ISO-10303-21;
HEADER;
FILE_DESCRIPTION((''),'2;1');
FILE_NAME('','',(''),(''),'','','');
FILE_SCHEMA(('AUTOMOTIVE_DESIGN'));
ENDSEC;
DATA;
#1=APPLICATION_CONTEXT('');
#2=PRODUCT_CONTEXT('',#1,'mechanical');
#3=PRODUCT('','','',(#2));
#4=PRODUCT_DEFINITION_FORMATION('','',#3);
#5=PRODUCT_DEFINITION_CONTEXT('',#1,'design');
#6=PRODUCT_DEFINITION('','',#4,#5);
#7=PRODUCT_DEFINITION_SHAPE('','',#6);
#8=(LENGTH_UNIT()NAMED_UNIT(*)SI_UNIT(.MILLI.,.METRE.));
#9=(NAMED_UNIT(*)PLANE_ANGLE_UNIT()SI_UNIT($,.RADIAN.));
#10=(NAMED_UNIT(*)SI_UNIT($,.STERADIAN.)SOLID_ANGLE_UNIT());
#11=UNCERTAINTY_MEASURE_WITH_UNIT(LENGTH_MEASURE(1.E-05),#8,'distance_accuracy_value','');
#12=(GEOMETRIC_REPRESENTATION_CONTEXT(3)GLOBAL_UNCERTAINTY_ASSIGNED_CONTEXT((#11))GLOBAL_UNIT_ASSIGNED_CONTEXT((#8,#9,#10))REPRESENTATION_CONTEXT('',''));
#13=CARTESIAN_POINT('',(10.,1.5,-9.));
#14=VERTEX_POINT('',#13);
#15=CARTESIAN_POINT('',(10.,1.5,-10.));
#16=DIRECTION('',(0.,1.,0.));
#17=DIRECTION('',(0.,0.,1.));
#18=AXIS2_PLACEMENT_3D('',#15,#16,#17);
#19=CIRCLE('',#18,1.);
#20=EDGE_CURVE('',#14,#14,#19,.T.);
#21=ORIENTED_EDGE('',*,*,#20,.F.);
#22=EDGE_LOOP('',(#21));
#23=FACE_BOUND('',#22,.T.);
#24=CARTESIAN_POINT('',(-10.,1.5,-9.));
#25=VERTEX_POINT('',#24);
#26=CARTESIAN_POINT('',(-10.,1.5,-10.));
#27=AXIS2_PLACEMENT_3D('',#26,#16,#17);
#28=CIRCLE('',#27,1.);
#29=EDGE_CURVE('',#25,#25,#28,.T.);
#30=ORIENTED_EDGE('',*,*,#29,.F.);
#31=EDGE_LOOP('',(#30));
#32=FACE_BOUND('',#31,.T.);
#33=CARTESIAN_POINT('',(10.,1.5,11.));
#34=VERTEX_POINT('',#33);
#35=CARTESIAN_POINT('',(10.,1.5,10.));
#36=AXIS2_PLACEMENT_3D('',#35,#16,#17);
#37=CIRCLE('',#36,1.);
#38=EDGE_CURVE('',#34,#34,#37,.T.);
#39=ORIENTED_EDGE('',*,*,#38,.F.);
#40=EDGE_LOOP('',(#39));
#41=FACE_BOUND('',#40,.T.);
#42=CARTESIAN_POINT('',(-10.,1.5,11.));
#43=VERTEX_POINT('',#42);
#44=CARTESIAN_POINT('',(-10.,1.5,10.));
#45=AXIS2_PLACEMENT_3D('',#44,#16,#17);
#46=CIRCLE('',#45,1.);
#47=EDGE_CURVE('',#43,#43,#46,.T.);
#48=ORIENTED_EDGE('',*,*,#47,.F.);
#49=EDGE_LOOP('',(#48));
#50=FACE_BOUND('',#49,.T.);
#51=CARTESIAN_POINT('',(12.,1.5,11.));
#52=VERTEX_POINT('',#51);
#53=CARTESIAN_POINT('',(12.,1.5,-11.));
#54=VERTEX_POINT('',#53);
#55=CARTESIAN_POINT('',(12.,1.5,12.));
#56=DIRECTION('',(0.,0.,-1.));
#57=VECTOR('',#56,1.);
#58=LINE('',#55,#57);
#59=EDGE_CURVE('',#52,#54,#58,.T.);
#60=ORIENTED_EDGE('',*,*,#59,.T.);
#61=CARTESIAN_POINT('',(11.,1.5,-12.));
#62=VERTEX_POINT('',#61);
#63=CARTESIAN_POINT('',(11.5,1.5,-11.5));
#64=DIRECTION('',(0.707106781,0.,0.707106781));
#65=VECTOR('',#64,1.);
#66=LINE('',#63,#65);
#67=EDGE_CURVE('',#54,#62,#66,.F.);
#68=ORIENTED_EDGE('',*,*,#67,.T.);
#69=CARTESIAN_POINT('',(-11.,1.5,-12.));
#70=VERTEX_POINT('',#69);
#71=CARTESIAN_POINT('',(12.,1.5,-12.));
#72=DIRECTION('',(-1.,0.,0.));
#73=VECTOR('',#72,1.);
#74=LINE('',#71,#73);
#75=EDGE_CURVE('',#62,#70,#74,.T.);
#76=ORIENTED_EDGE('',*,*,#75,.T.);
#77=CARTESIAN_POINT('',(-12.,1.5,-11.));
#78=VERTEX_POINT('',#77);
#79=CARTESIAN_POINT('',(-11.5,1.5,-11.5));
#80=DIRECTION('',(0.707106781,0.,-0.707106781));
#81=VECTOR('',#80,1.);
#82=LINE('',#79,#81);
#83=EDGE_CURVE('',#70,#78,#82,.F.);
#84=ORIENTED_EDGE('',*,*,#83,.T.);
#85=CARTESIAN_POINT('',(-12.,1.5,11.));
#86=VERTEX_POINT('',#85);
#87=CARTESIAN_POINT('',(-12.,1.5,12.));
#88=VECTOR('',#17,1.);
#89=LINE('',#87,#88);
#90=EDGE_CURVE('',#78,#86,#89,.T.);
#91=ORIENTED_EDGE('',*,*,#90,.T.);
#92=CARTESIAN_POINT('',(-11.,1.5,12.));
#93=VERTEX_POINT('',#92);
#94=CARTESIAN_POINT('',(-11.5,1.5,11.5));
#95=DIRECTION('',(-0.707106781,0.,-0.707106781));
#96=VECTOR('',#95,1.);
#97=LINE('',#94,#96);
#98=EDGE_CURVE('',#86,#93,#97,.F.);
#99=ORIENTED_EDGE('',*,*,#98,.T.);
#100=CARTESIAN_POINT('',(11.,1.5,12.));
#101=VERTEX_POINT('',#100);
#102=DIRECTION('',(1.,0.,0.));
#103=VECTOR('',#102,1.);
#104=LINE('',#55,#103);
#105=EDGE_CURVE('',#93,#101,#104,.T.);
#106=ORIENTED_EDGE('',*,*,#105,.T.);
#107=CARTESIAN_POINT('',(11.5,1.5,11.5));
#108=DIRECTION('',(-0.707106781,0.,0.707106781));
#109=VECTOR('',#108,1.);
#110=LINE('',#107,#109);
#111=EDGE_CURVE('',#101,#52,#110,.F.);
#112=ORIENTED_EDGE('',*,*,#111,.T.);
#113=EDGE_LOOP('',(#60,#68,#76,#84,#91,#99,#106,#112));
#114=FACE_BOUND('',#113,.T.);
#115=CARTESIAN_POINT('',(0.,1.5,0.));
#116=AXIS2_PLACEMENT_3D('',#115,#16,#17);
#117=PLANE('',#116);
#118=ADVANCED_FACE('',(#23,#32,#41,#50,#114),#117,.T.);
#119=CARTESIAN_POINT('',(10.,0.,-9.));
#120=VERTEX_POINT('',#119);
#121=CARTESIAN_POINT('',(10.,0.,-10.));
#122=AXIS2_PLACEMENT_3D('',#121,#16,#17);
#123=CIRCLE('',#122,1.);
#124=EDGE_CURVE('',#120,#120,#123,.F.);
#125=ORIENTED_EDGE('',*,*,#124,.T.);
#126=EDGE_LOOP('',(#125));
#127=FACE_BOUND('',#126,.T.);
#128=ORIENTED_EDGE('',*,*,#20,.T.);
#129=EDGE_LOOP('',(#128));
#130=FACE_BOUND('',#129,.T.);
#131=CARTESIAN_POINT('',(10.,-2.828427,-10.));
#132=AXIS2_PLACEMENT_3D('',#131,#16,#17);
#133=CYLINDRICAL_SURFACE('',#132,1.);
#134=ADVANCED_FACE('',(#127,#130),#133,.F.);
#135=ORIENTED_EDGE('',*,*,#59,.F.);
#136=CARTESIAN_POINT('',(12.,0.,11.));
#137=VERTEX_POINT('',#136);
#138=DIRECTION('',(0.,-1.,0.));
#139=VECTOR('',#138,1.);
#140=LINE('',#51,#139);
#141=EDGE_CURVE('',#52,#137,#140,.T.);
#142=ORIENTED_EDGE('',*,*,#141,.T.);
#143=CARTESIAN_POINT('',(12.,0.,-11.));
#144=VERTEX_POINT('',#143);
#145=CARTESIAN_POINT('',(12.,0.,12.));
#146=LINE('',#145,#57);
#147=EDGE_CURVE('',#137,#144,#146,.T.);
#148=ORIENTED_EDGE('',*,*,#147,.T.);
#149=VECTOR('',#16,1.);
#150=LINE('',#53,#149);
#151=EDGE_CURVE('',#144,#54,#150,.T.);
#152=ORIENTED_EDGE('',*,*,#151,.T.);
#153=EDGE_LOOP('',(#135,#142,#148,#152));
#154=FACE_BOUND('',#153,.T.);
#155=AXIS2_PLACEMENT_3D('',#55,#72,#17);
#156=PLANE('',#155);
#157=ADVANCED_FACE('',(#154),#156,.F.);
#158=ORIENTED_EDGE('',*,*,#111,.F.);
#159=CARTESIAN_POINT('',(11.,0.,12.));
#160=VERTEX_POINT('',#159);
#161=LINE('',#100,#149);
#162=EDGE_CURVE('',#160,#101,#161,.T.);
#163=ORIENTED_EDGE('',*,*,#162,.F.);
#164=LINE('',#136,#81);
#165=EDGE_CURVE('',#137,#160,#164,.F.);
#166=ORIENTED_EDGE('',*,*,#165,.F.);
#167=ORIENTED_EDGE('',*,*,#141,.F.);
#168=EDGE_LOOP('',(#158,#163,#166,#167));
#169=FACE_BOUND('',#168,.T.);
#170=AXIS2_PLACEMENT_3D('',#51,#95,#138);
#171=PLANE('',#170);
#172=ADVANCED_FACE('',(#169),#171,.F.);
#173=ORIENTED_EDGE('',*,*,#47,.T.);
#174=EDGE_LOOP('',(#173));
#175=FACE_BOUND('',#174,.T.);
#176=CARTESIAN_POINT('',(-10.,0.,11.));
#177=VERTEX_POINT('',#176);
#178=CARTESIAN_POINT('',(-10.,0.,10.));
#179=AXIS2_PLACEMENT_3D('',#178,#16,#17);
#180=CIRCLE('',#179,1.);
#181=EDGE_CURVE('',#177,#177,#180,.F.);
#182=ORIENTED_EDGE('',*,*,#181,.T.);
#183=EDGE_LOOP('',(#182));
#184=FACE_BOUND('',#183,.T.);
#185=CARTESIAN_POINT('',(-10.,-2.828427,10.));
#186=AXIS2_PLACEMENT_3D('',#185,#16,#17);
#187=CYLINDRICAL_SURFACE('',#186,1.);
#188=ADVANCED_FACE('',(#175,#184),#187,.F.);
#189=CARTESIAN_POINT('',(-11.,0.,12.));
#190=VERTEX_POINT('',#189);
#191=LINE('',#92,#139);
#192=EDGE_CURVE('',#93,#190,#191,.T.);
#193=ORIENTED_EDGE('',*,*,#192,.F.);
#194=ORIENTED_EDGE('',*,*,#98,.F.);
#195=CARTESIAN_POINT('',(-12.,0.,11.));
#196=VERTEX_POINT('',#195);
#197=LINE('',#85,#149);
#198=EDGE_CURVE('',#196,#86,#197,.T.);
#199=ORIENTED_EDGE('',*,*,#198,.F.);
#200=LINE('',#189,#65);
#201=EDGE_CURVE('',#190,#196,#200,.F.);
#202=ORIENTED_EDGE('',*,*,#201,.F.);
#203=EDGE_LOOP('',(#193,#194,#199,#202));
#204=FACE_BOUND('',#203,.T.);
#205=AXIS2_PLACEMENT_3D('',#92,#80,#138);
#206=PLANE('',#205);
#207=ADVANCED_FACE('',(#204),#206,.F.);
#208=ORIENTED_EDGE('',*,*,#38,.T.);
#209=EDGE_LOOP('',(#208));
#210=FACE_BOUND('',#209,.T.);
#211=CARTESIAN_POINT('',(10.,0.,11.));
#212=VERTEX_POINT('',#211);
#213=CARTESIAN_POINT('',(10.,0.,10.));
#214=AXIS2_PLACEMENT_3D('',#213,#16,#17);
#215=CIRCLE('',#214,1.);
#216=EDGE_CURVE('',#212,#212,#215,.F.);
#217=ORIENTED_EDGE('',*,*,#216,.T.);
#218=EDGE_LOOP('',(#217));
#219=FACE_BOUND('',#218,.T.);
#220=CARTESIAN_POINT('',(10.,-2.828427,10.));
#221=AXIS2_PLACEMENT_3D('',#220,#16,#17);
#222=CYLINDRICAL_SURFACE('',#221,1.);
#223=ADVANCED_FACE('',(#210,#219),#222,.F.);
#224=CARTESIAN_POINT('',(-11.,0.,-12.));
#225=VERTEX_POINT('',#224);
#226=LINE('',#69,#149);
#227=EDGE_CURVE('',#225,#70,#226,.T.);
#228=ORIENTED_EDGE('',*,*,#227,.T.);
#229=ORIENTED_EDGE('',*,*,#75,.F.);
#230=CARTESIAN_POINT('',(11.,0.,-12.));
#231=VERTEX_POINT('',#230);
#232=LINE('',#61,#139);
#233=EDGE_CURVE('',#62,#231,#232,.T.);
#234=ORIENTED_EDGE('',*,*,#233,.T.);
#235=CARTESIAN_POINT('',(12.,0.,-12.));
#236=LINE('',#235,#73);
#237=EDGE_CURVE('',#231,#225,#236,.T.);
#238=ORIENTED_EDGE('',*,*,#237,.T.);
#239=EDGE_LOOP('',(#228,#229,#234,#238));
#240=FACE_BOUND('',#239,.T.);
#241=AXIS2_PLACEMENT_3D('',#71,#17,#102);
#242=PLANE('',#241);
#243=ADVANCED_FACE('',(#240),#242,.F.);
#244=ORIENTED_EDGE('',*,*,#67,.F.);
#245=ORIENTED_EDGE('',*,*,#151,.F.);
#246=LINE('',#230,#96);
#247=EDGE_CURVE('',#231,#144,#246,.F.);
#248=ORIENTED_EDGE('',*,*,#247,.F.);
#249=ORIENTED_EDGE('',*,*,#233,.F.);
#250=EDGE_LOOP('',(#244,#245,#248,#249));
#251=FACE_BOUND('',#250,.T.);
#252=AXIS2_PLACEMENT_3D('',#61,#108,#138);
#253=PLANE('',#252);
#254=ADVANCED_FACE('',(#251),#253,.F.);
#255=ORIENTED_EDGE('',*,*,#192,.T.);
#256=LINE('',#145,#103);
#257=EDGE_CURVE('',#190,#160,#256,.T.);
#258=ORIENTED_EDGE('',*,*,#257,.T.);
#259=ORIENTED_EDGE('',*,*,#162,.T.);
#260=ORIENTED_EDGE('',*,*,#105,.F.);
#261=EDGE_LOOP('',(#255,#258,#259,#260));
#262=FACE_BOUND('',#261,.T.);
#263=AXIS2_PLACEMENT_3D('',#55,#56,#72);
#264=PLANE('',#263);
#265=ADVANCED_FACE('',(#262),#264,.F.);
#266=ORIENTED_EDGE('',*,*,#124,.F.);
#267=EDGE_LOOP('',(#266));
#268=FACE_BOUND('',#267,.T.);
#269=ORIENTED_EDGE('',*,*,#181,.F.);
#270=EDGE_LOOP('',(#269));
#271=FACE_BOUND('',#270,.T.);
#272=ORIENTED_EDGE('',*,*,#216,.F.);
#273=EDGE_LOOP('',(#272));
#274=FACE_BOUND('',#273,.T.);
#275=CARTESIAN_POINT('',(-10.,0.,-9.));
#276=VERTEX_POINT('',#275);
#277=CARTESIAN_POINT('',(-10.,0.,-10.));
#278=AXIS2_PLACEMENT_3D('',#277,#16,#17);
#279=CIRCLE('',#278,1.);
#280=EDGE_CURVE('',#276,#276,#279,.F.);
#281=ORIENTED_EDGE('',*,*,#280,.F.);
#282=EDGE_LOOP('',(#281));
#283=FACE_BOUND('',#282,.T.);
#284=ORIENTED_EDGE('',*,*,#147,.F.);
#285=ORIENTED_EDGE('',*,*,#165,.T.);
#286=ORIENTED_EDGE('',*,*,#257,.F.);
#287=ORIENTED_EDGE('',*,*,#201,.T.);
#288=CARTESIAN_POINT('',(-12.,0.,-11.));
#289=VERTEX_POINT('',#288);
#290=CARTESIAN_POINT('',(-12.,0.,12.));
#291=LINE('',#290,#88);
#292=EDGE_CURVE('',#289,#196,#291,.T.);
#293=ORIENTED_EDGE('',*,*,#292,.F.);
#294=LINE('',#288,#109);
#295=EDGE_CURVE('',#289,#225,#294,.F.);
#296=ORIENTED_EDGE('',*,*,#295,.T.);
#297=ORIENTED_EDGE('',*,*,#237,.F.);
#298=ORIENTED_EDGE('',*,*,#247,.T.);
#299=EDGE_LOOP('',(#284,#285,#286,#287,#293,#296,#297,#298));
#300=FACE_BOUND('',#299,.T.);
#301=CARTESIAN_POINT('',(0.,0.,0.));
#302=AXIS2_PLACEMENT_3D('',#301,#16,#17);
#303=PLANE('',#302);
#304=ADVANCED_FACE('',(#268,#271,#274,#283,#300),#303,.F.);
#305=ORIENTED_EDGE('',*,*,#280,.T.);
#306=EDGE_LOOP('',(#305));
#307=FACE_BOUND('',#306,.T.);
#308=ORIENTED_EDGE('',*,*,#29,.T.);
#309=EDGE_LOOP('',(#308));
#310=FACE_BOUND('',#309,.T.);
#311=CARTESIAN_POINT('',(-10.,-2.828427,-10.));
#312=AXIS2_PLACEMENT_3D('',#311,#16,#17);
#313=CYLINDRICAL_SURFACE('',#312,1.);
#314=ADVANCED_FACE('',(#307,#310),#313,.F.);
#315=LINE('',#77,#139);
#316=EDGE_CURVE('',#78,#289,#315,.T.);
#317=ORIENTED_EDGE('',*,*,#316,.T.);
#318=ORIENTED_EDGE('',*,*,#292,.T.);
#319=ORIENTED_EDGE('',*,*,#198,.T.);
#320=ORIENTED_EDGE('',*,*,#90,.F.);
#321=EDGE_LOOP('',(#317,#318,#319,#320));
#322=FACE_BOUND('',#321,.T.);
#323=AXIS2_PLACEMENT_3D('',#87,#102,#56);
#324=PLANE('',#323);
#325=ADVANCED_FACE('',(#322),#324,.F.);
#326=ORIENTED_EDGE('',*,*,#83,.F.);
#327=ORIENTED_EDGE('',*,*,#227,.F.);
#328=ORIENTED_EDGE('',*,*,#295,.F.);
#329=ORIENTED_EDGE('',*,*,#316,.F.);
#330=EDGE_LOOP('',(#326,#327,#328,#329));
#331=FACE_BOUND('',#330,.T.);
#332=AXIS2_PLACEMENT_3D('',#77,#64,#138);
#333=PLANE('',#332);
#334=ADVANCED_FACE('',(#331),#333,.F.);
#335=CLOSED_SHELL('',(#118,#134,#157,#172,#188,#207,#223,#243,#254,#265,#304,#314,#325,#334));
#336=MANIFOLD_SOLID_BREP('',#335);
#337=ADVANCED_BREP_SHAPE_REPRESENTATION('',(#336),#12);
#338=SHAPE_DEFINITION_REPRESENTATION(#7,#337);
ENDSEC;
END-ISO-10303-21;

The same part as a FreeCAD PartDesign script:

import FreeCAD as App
import Part
import Sketcher
Q = App.Units.Quantity


def edges_at(feature, points):
    """Names of the edges that pass closest to the given points."""
    edges = feature.Shape.Edges
    near = lambda p: min(range(len(edges)), key=lambda i: edges[i].distToShape(Part.Vertex(*p))[0])
    return sorted({f"Edge{near(p) + 1}" for p in points})

doc = App.newDocument("Part")
params = doc.addObject("Spreadsheet::Sheet", "Params")
for row, (alias, value) in enumerate([
    ("sketch1_width", "24 mm"),
    ("pad1_length", "1.5 mm"),
    ("chamfer_size", "1 mm"),
    ("sketch2_diameter", "2 mm"),
    ("pocket1_length", "1.5 mm"),
], start=1):
    params.set(f"A{row}", alias)
    params.set(f"B{row}", "=" + value)
    params.setAlias(f"B{row}", alias)

body = doc.addObject("PartDesign::Body", "Body")

sketch1 = doc.addObject("Sketcher::SketchObject", "Sketch")
body.addObject(sketch1)
sketch1.AttachmentSupport = (doc.XZ_Plane, [""])
sketch1.MapMode = "FlatFace"
sketch1.addGeometry([
    Part.LineSegment(App.Vector(-12, -12, 0), App.Vector(-12, 12, 0)),
    Part.LineSegment(App.Vector(-12, 12, 0), App.Vector(12, 12, 0)),
    Part.LineSegment(App.Vector(12, 12, 0), App.Vector(12, -12, 0)),
    Part.LineSegment(App.Vector(12, -12, 0), App.Vector(-12, -12, 0)),
], False)
sketch1.addConstraint([
    Sketcher.Constraint("Coincident", 0, 2, 1, 1),
    Sketcher.Constraint("Coincident", 1, 2, 2, 1),
    Sketcher.Constraint("Coincident", 2, 2, 3, 1),
    Sketcher.Constraint("Coincident", 3, 2, 0, 1),
    Sketcher.Constraint("Vertical", 0),
    Sketcher.Constraint("Horizontal", 1),
    Sketcher.Constraint("Vertical", 2),
    Sketcher.Constraint("Horizontal", 3),
    Sketcher.Constraint("Symmetric", 0, 2, 2, 2, -1, 1),
    Sketcher.Constraint("Equal", 3, 0),
    Sketcher.Constraint("DistanceX", 1, 1, 1, 2, Q("24 mm")),
])
sketch1.setExpression("Constraints[10]", "Params.sketch1_width")
pad1 = doc.addObject("PartDesign::Pad", "Pad")
body.addObject(pad1)
pad1.Profile = sketch1
pad1.setExpression("Length", "Params.pad1_length")
pad1.Reversed = True
doc.recompute()

chamfer = doc.addObject("PartDesign::Chamfer", "Chamfer")
body.addObject(chamfer)
chamfer.Base = (pad1, edges_at(pad1, [
    (-12, 0.75, -12),
    (12, 0.75, -12),
    (12, 0.75, 12),
    (-12, 0.75, 12),
]))
chamfer.setExpression("Size", "Params.chamfer_size")

sketch2 = doc.addObject("Sketcher::SketchObject", "Sketch001")
body.addObject(sketch2)
sketch2.AttachmentSupport = (doc.XZ_Plane, [""])
sketch2.MapMode = "FlatFace"
sketch2.AttachmentOffset = App.Placement(App.Vector(0, 0, -1.5), App.Rotation())
sketch2.addGeometry([
    Part.Circle(App.Vector(-10, -10, 0), App.Vector(0, 0, 1), 1),
    Part.Circle(App.Vector(10, -10, 0), App.Vector(0, 0, 1), 1),
    Part.Circle(App.Vector(10, 10, 0), App.Vector(0, 0, 1), 1),
    Part.Circle(App.Vector(-10, 10, 0), App.Vector(0, 0, 1), 1),
], False)
sketch2.addConstraint([
    Sketcher.Constraint("Equal", 0, 1),
    Sketcher.Constraint("Equal", 1, 2),
    Sketcher.Constraint("Equal", 2, 3),
    Sketcher.Constraint("Symmetric", 0, 3, 2, 3, -1, 1),
    Sketcher.Constraint("Symmetric", 1, 3, 3, 3, -1, 1),
    Sketcher.Constraint("Symmetric", 0, 3, 1, 3, -2),
    Sketcher.Constraint("Diameter", 0, Q("2 mm")),
    Sketcher.Constraint("DistanceX", 0, 3, -1, 1, Q("10 mm")),
    Sketcher.Constraint("DistanceY", 0, 3, -1, 1, Q("10 mm")),
])
sketch2.setExpression("Constraints[6]", "Params.sketch2_diameter")
pocket1 = doc.addObject("PartDesign::Pocket", "Pocket")
body.addObject(pocket1)
pocket1.Profile = sketch2
pocket1.setExpression("Length", "Params.pocket1_length")
pocket1.Reversed = True

doc.recompute()
